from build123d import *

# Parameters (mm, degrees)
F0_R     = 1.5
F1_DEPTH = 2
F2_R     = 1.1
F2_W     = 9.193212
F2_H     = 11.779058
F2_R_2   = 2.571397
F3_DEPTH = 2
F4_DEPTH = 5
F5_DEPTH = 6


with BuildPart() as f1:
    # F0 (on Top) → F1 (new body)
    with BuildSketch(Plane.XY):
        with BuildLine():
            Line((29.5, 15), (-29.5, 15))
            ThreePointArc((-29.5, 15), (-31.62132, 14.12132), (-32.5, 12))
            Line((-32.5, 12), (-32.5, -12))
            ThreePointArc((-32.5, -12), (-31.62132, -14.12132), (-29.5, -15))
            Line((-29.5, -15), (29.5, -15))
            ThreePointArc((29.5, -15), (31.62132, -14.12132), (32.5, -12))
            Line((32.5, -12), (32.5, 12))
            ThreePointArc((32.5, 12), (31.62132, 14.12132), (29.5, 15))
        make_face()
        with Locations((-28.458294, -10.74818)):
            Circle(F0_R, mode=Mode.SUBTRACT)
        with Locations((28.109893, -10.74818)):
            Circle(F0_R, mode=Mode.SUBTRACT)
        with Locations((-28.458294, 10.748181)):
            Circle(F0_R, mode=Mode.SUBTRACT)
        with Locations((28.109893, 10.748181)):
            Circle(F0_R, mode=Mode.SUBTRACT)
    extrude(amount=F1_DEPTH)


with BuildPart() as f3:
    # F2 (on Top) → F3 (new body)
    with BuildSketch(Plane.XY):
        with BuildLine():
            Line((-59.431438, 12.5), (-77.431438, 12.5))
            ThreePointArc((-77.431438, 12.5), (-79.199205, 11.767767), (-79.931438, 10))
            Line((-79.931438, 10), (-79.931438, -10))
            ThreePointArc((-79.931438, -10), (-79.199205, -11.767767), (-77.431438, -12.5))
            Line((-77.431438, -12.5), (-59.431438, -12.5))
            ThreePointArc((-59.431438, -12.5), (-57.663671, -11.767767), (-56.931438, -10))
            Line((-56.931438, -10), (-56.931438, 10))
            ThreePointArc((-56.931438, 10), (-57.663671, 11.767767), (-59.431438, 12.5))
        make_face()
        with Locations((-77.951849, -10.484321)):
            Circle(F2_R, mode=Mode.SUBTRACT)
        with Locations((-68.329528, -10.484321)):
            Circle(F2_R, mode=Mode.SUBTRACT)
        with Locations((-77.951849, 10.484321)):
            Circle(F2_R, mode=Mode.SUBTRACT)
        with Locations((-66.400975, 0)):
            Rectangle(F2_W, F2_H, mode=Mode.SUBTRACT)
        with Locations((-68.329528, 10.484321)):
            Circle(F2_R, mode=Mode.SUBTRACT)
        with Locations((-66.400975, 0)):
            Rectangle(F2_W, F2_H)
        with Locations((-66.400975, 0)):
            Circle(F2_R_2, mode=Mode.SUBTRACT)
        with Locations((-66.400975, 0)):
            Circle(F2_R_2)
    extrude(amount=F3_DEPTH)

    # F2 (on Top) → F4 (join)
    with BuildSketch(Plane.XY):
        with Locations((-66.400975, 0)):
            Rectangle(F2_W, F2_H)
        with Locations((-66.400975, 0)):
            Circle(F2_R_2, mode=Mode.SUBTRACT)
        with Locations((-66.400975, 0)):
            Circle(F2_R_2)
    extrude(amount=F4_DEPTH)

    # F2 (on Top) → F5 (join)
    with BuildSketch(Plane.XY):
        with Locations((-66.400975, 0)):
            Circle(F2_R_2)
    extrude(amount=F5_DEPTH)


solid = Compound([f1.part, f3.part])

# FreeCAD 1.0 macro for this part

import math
import FreeCAD as App
import Part
import Sketcher
from FreeCAD import Vector
Q = App.Units.Quantity


def add_polygon(sketch, points):
    """Adds a closed chain of lines whose ends are joined by coincident constraints."""
    first, n = sketch.GeometryCount, len(points)
    for a, b in zip(points, points[1:] + points[:1]):
        sketch.addGeometry(Part.LineSegment(App.Vector(*a, 0), App.Vector(*b, 0)), False)
    for i in range(n):
        sketch.addConstraint(Sketcher.Constraint("Coincident", first + i, 2, first + (i + 1) % n, 1))

doc = App.newDocument("Part")
body = doc.addObject("PartDesign::Body", "Body")

# Sketch on XY plane
sketch1 = body.newObject("Sketcher::SketchObject", "Sketch")
sketch1.AttachmentSupport = (doc.getObject("XY_Plane"), [""])
sketch1.MapMode = "FlatFace"
sketch1.addGeometry(Part.LineSegment(Vector(29.5, 15, 0), Vector(-29.5, 15, 0)), False)
sketch1.addGeometry(Part.ArcOfCircle(Part.Circle(Vector(-29.499999, 11.999999, 0), Vector(0, 0, 1), 3.000001), math.radians(90.000022), math.radians(179.999978)), False)
sketch1.addGeometry(Part.LineSegment(Vector(-32.5, 12, 0), Vector(-32.5, -12, 0)), False)
sketch1.addGeometry(Part.ArcOfCircle(Part.Circle(Vector(-29.499999, -11.999999, 0), Vector(0, 0, 1), 3.000001), math.radians(-179.999978), math.radians(-90.000022)), False)
sketch1.addGeometry(Part.LineSegment(Vector(-29.5, -15, 0), Vector(29.5, -15, 0)), False)
sketch1.addGeometry(Part.ArcOfCircle(Part.Circle(Vector(29.499999, -11.999999, 0), Vector(0, 0, 1), 3.000001), math.radians(-89.999978), math.radians(-0.000022)), False)
sketch1.addGeometry(Part.LineSegment(Vector(32.5, -12, 0), Vector(32.5, 12, 0)), False)
sketch1.addGeometry(Part.ArcOfCircle(Part.Circle(Vector(29.499999, 11.999999, 0), Vector(0, 0, 1), 3.000001), math.radians(0.000022), math.radians(89.999978)), False)
sketch1.addGeometry(Part.Circle(Vector(-28.458294, -10.74818, 0), Vector(0, 0, 1), 1.5), False)
sketch1.addGeometry(Part.Circle(Vector(28.109893, -10.74818, 0), Vector(0, 0, 1), 1.5), False)
sketch1.addGeometry(Part.Circle(Vector(-28.458294, 10.748181, 0), Vector(0, 0, 1), 1.5), False)
sketch1.addGeometry(Part.Circle(Vector(28.109893, 10.748181, 0), Vector(0, 0, 1), 1.5), False)
sketch1.addConstraint(Sketcher.Constraint("Tangent", 0, 2, 1, 1))
sketch1.addConstraint(Sketcher.Constraint("Tangent", 1, 2, 2, 1))
sketch1.addConstraint(Sketcher.Constraint("Tangent", 2, 2, 3, 1))
sketch1.addConstraint(Sketcher.Constraint("Tangent", 3, 2, 4, 1))
sketch1.addConstraint(Sketcher.Constraint("Tangent", 4, 2, 5, 1))
sketch1.addConstraint(Sketcher.Constraint("Tangent", 5, 2, 6, 1))
sketch1.addConstraint(Sketcher.Constraint("Tangent", 6, 2, 7, 1))
sketch1.addConstraint(Sketcher.Constraint("Tangent", 7, 2, 0, 1))
sketch1.addConstraint(Sketcher.Constraint("Horizontal", 0))
sketch1.addConstraint(Sketcher.Constraint("Vertical", 2))
sketch1.addConstraint(Sketcher.Constraint("Horizontal", 4))
sketch1.addConstraint(Sketcher.Constraint("Vertical", 6))
sketch1.addConstraint(Sketcher.Constraint("Equal", 1, 3))
sketch1.addConstraint(Sketcher.Constraint("Equal", 3, 5))
sketch1.addConstraint(Sketcher.Constraint("Equal", 5, 7))
sketch1.addConstraint(Sketcher.Constraint("Equal", 8, 9))
sketch1.addConstraint(Sketcher.Constraint("Equal", 9, 10))
sketch1.addConstraint(Sketcher.Constraint("Equal", 10, 11))
sketch1.addConstraint(Sketcher.Constraint("Symmetric", 1, 3, 5, 3, -1, 1))
sketch1.addConstraint(Sketcher.Constraint("Symmetric", 8, 3, 10, 3, -1))
sketch1.addConstraint(Sketcher.Constraint("Symmetric", 9, 3, 11, 3, -1))
sketch1.addConstraint(Sketcher.Constraint("Horizontal", 8, 3, 9, 3))
sketch1.addConstraint(Sketcher.Constraint("Diameter", 8, Q("3 mm")))
sketch1.addConstraint(Sketcher.Constraint("Radius", 1, Q("3.000001 mm")))
sketch1.addConstraint(Sketcher.Constraint("DistanceX", 0, 2, 0, 1, Q("59 mm")))
sketch1.addConstraint(Sketcher.Constraint("DistanceY", 2, 2, 2, 1, Q("24 mm")))
sketch1.addConstraint(Sketcher.Constraint("DistanceY", 8, 3, -1, 1, Q("10.74818 mm")))
sketch1.addConstraint(Sketcher.Constraint("DistanceX", 3, 3, 9, 3, Q("57.609892 mm")))
sketch1.addConstraint(Sketcher.Constraint("DistanceX", 8, 3, -1, 1, Q("28.458294 mm")))
pad1 = body.newObject("PartDesign::Pad", "Pad")
pad1.Profile = sketch1
pad1.Length = 2
body2 = doc.addObject("PartDesign::Body", "Body001")

# Sketch on XY plane
sketch2 = body2.newObject("Sketcher::SketchObject", "Sketch001")
sketch2.AttachmentSupport = (doc.getObject("XY_Plane001"), [""])
sketch2.MapMode = "FlatFace"
sketch2.addGeometry(Part.LineSegment(Vector(-59.431438, 12.5, 0), Vector(-77.431438, 12.5, 0)), False)
sketch2.addGeometry(Part.ArcOfCircle(Part.Circle(Vector(-77.431438, 10, 0), Vector(0, 0, 1), 2.5), math.radians(89.999996), math.radians(180.000004)), False)
sketch2.addGeometry(Part.LineSegment(Vector(-79.931438, 10, 0), Vector(-79.931438, -10, 0)), False)
sketch2.addGeometry(Part.ArcOfCircle(Part.Circle(Vector(-77.431438, -10, 0), Vector(0, 0, 1), 2.5), math.radians(179.999996), math.radians(270.000004)), False)
sketch2.addGeometry(Part.LineSegment(Vector(-77.431438, -12.5, 0), Vector(-59.431438, -12.5, 0)), False)
sketch2.addGeometry(Part.ArcOfCircle(Part.Circle(Vector(-59.431438, -10, 0), Vector(0, 0, 1), 2.5), math.radians(-90.000004), math.radians(0.000004)), False)
sketch2.addGeometry(Part.LineSegment(Vector(-56.931438, -10, 0), Vector(-56.931438, 10, 0)), False)
sketch2.addGeometry(Part.ArcOfCircle(Part.Circle(Vector(-59.431438, 10, 0), Vector(0, 0, 1), 2.5), math.radians(-0.000004), math.radians(90.000004)), False)
sketch2.addGeometry(Part.Circle(Vector(-77.951849, -10.484321, 0), Vector(0, 0, 1), 1.1), False)
sketch2.addGeometry(Part.Circle(Vector(-68.329528, -10.484321, 0), Vector(0, 0, 1), 1.1), False)
sketch2.addGeometry(Part.Circle(Vector(-77.951849, 10.484321, 0), Vector(0, 0, 1), 1.1), False)
sketch2.addGeometry(Part.Circle(Vector(-68.329528, 10.484321, 0), Vector(0, 0, 1), 1.1), False)
sketch2.addConstraint(Sketcher.Constraint("Tangent", 0, 2, 1, 1))
sketch2.addConstraint(Sketcher.Constraint("Tangent", 1, 2, 2, 1))
sketch2.addConstraint(Sketcher.Constraint("Tangent", 2, 2, 3, 1))
sketch2.addConstraint(Sketcher.Constraint("Tangent", 3, 2, 4, 1))
sketch2.addConstraint(Sketcher.Constraint("Tangent", 4, 2, 5, 1))
sketch2.addConstraint(Sketcher.Constraint("Tangent", 5, 2, 6, 1))
sketch2.addConstraint(Sketcher.Constraint("Tangent", 6, 2, 7, 1))
sketch2.addConstraint(Sketcher.Constraint("Tangent", 7, 2, 0, 1))
sketch2.addConstraint(Sketcher.Constraint("Horizontal", 0))
sketch2.addConstraint(Sketcher.Constraint("Vertical", 2))
sketch2.addConstraint(Sketcher.Constraint("Horizontal", 4))
sketch2.addConstraint(Sketcher.Constraint("Vertical", 6))
sketch2.addConstraint(Sketcher.Constraint("Equal", 1, 3))
sketch2.addConstraint(Sketcher.Constraint("Equal", 3, 5))
sketch2.addConstraint(Sketcher.Constraint("Equal", 5, 7))
sketch2.addConstraint(Sketcher.Constraint("Equal", 8, 9))
sketch2.addConstraint(Sketcher.Constraint("Equal", 9, 10))
sketch2.addConstraint(Sketcher.Constraint("Equal", 10, 11))
sketch2.addConstraint(Sketcher.Constraint("Symmetric", 8, 3, 10, 3, -1))
sketch2.addConstraint(Sketcher.Constraint("Symmetric", 9, 3, 11, 3, -1))
sketch2.addConstraint(Sketcher.Constraint("Horizontal", 8, 3, 9, 3))
sketch2.addConstraint(Sketcher.Constraint("Diameter", 8, Q("2.2 mm")))
sketch2.addConstraint(Sketcher.Constraint("Radius", 1, Q("2.5 mm")))
sketch2.addConstraint(Sketcher.Constraint("DistanceX", 0, 2, 0, 1, Q("18 mm")))
sketch2.addConstraint(Sketcher.Constraint("DistanceY", 2, 2, 2, 1, Q("20 mm")))
sketch2.addConstraint(Sketcher.Constraint("DistanceY", -1, 1, 1, 3, Q("10 mm")))
sketch2.addConstraint(Sketcher.Constraint("DistanceX", 1, 3, -1, 1, Q("77.431438 mm")))
sketch2.addConstraint(Sketcher.Constraint("DistanceX", 8, 3, -1, 1, Q("77.951849 mm")))
sketch2.addConstraint(Sketcher.Constraint("DistanceY", 8, 3, -1, 1, Q("10.484321 mm")))
sketch2.addConstraint(Sketcher.Constraint("DistanceX", 9, 3, 5, 3, Q("8.89809 mm")))
pad2 = body2.newObject("PartDesign::Pad", "Pad001")
pad2.Profile = sketch2
pad2.Length = 2

# Sketch on XY plane
sketch3 = body2.newObject("Sketcher::SketchObject", "Sketch002")
sketch3.AttachmentSupport = (doc.getObject("XY_Plane001"), [""])
sketch3.MapMode = "FlatFace"
add_polygon(sketch3, [(-70.997581, 5.889529), (-70.997581, -5.889529), (-61.804369, -5.889529), (-61.804369, 5.889529)])  # lines 0-3
sketch3.addConstraint(Sketcher.Constraint("Vertical", 0))
sketch3.addConstraint(Sketcher.Constraint("Horizontal", 1))
sketch3.addConstraint(Sketcher.Constraint("Vertical", 2))
sketch3.addConstraint(Sketcher.Constraint("Horizontal", 3))
sketch3.addConstraint(Sketcher.Constraint("DistanceX", 1, 1, 1, 2, Q("9.193212 mm")))
sketch3.addConstraint(Sketcher.Constraint("DistanceY", 0, 2, 0, 1, Q("11.779058 mm")))
sketch3.addConstraint(Sketcher.Constraint("DistanceX", 0, 2, -1, 1, Q("70.997581 mm")))
sketch3.addConstraint(Sketcher.Constraint("DistanceY", 0, 2, -1, 1, Q("5.889529 mm")))
pad3 = body2.newObject("PartDesign::Pad", "Pad002")
pad3.Profile = sketch3
pad3.Length = 5

# Sketch on XY plane
sketch4 = body2.newObject("Sketcher::SketchObject", "Sketch003")
sketch4.AttachmentSupport = (doc.getObject("XY_Plane001"), [""])
sketch4.MapMode = "FlatFace"
sketch4.addGeometry(Part.Circle(Vector(-66.400975, 0, 0), Vector(0, 0, 1), 2.571397), False)
sketch4.addConstraint(Sketcher.Constraint("PointOnObject", 0, 3, -1))
sketch4.addConstraint(Sketcher.Constraint("Diameter", 0, Q("5.142794 mm")))
sketch4.addConstraint(Sketcher.Constraint("DistanceX", 0, 3, -1, 1, Q("66.400975 mm")))
pad4 = body2.newObject("PartDesign::Pad", "Pad003")
pad4.Profile = sketch4
pad4.Length = 6

doc.recompute()
